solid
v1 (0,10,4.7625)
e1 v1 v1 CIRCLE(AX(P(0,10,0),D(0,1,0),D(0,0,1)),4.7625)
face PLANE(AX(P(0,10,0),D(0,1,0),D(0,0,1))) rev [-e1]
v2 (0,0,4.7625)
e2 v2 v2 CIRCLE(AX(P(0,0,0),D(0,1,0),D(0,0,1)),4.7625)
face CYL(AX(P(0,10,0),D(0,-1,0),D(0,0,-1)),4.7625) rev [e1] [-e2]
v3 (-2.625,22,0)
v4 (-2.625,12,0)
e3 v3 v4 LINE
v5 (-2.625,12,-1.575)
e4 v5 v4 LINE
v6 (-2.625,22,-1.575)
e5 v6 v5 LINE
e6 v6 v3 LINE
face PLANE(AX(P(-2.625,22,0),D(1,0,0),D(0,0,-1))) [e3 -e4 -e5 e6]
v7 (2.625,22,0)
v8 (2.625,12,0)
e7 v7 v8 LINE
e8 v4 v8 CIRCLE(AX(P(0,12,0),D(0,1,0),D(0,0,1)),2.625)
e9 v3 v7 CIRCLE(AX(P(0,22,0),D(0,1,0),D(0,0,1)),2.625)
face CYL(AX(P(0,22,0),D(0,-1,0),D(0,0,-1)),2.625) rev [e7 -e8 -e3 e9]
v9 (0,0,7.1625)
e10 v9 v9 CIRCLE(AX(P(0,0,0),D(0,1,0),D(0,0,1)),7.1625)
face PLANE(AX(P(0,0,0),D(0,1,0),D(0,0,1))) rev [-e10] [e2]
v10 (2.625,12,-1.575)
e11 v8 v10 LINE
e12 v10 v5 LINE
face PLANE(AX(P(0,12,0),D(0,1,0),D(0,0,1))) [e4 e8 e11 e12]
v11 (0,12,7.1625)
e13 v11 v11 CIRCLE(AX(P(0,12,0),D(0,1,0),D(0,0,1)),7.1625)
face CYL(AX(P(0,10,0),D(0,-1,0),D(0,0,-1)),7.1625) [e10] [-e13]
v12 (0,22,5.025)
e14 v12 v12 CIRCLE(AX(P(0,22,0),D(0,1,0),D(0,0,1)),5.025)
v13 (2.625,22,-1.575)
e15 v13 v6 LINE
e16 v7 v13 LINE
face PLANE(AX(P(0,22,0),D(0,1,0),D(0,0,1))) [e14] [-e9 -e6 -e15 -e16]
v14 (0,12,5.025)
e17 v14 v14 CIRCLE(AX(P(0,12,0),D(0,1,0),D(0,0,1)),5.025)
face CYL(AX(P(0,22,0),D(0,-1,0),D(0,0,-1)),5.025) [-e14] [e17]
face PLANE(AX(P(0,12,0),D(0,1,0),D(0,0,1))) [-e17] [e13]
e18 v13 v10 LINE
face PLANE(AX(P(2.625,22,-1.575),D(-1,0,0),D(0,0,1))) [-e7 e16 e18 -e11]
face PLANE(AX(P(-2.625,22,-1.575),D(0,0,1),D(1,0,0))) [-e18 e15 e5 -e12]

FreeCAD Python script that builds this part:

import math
import FreeCAD as App
import Part
import Sketcher

V = App.Vector

doc = App.newDocument("Part")
body = doc.addObject("PartDesign::Body", "Body")

sketch1 = body.newObject("Sketcher::SketchObject", "Sketch")
sketch1.AttachmentSupport = (doc.getObject("XZ_Plane"), [""])
sketch1.MapMode = "FlatFace"
sketch1.addGeometry(Part.Circle(V(0, 0, 0), V(0, 0, 1), 7.2), False)
sketch1.addGeometry(Part.Circle(V(0, 0, 0), V(0, 0, 1), 4.8), False)
sketch1.addConstraint(Sketcher.Constraint("Coincident", 0, 3, -1, 1))
sketch1.addConstraint(Sketcher.Constraint("Coincident", 1, 3, -1, 1))
sketch1.addConstraint(Sketcher.Constraint("Diameter", 0, 14.325))
sketch1.addConstraint(Sketcher.Constraint("Diameter", 1, 9.525))
pad1 = body.newObject("PartDesign::Pad", "Pad")
pad1.Profile = sketch1
pad1.Length = 10
pad1.Reversed = True

sketch2 = body.newObject("Sketcher::SketchObject", "Sketch001")
sketch2.AttachmentSupport = (doc.getObject("XZ_Plane"), [""])
sketch2.MapMode = "FlatFace"
sketch2.AttachmentOffset = App.Placement(V(0, 0, -10), App.Rotation())
sketch2.addGeometry(Part.Circle(V(0, 0, 0), V(0, 0, 1), 7), False)
sketch2.addConstraint(Sketcher.Constraint("Coincident", 0, 3, -1, 1))
sketch2.addConstraint(Sketcher.Constraint("Diameter", 0, 14.325))
pad2 = body.newObject("PartDesign::Pad", "Pad001")
pad2.Profile = sketch2
pad2.Length = 2
pad2.Reversed = True

sketch3 = body.newObject("Sketcher::SketchObject", "Sketch002")
sketch3.AttachmentSupport = (doc.getObject("XZ_Plane"), [""])
sketch3.MapMode = "FlatFace"
sketch3.AttachmentOffset = App.Placement(V(0, 0, -12), App.Rotation())
sketch3.addGeometry(Part.Circle(V(0, 0, 0), V(0, 0, 1), 5), False)
sketch3.addGeometry(Part.ArcOfCircle(Part.Circle(V(0, 0, 0), V(0, 0, 1), 2.6), math.radians(0), math.radians(180)), False)
sketch3.addGeometry(Part.LineSegment(V(-2.6, 0, 0), V(-2.6, -1.6, 0)), False)
sketch3.addGeometry(Part.LineSegment(V(-2.6, -1.6, 0), V(2.6, -1.6, 0)), False)
sketch3.addGeometry(Part.LineSegment(V(2.6, -1.6, 0), V(2.6, 0, 0)), False)
sketch3.addConstraint(Sketcher.Constraint("Tangent", 1, 2, 2, 1))
sketch3.addConstraint(Sketcher.Constraint("Coincident", 2, 2, 3, 1))
sketch3.addConstraint(Sketcher.Constraint("Coincident", 3, 2, 4, 1))
sketch3.addConstraint(Sketcher.Constraint("Tangent", 4, 2, 1, 1))
sketch3.addConstraint(Sketcher.Constraint("Vertical", 2))
sketch3.addConstraint(Sketcher.Constraint("Horizontal", 3))
sketch3.addConstraint(Sketcher.Constraint("Vertical", 4))
sketch3.addConstraint(Sketcher.Constraint("Coincident", 0, 3, -1, 1))
sketch3.addConstraint(Sketcher.Constraint("Coincident", 1, 3, -1, 1))
sketch3.addConstraint(Sketcher.Constraint("Diameter", 0, 10.05))
sketch3.addConstraint(Sketcher.Constraint("Radius", 1, 2.625))
sketch3.addConstraint(Sketcher.Constraint("DistanceY", 2, 2, 2, 1, 1.575))
pad3 = body.newObject("PartDesign::Pad", "Pad002")
pad3.Profile = sketch3
pad3.Length = 10
pad3.Reversed = True

doc.recompute()
